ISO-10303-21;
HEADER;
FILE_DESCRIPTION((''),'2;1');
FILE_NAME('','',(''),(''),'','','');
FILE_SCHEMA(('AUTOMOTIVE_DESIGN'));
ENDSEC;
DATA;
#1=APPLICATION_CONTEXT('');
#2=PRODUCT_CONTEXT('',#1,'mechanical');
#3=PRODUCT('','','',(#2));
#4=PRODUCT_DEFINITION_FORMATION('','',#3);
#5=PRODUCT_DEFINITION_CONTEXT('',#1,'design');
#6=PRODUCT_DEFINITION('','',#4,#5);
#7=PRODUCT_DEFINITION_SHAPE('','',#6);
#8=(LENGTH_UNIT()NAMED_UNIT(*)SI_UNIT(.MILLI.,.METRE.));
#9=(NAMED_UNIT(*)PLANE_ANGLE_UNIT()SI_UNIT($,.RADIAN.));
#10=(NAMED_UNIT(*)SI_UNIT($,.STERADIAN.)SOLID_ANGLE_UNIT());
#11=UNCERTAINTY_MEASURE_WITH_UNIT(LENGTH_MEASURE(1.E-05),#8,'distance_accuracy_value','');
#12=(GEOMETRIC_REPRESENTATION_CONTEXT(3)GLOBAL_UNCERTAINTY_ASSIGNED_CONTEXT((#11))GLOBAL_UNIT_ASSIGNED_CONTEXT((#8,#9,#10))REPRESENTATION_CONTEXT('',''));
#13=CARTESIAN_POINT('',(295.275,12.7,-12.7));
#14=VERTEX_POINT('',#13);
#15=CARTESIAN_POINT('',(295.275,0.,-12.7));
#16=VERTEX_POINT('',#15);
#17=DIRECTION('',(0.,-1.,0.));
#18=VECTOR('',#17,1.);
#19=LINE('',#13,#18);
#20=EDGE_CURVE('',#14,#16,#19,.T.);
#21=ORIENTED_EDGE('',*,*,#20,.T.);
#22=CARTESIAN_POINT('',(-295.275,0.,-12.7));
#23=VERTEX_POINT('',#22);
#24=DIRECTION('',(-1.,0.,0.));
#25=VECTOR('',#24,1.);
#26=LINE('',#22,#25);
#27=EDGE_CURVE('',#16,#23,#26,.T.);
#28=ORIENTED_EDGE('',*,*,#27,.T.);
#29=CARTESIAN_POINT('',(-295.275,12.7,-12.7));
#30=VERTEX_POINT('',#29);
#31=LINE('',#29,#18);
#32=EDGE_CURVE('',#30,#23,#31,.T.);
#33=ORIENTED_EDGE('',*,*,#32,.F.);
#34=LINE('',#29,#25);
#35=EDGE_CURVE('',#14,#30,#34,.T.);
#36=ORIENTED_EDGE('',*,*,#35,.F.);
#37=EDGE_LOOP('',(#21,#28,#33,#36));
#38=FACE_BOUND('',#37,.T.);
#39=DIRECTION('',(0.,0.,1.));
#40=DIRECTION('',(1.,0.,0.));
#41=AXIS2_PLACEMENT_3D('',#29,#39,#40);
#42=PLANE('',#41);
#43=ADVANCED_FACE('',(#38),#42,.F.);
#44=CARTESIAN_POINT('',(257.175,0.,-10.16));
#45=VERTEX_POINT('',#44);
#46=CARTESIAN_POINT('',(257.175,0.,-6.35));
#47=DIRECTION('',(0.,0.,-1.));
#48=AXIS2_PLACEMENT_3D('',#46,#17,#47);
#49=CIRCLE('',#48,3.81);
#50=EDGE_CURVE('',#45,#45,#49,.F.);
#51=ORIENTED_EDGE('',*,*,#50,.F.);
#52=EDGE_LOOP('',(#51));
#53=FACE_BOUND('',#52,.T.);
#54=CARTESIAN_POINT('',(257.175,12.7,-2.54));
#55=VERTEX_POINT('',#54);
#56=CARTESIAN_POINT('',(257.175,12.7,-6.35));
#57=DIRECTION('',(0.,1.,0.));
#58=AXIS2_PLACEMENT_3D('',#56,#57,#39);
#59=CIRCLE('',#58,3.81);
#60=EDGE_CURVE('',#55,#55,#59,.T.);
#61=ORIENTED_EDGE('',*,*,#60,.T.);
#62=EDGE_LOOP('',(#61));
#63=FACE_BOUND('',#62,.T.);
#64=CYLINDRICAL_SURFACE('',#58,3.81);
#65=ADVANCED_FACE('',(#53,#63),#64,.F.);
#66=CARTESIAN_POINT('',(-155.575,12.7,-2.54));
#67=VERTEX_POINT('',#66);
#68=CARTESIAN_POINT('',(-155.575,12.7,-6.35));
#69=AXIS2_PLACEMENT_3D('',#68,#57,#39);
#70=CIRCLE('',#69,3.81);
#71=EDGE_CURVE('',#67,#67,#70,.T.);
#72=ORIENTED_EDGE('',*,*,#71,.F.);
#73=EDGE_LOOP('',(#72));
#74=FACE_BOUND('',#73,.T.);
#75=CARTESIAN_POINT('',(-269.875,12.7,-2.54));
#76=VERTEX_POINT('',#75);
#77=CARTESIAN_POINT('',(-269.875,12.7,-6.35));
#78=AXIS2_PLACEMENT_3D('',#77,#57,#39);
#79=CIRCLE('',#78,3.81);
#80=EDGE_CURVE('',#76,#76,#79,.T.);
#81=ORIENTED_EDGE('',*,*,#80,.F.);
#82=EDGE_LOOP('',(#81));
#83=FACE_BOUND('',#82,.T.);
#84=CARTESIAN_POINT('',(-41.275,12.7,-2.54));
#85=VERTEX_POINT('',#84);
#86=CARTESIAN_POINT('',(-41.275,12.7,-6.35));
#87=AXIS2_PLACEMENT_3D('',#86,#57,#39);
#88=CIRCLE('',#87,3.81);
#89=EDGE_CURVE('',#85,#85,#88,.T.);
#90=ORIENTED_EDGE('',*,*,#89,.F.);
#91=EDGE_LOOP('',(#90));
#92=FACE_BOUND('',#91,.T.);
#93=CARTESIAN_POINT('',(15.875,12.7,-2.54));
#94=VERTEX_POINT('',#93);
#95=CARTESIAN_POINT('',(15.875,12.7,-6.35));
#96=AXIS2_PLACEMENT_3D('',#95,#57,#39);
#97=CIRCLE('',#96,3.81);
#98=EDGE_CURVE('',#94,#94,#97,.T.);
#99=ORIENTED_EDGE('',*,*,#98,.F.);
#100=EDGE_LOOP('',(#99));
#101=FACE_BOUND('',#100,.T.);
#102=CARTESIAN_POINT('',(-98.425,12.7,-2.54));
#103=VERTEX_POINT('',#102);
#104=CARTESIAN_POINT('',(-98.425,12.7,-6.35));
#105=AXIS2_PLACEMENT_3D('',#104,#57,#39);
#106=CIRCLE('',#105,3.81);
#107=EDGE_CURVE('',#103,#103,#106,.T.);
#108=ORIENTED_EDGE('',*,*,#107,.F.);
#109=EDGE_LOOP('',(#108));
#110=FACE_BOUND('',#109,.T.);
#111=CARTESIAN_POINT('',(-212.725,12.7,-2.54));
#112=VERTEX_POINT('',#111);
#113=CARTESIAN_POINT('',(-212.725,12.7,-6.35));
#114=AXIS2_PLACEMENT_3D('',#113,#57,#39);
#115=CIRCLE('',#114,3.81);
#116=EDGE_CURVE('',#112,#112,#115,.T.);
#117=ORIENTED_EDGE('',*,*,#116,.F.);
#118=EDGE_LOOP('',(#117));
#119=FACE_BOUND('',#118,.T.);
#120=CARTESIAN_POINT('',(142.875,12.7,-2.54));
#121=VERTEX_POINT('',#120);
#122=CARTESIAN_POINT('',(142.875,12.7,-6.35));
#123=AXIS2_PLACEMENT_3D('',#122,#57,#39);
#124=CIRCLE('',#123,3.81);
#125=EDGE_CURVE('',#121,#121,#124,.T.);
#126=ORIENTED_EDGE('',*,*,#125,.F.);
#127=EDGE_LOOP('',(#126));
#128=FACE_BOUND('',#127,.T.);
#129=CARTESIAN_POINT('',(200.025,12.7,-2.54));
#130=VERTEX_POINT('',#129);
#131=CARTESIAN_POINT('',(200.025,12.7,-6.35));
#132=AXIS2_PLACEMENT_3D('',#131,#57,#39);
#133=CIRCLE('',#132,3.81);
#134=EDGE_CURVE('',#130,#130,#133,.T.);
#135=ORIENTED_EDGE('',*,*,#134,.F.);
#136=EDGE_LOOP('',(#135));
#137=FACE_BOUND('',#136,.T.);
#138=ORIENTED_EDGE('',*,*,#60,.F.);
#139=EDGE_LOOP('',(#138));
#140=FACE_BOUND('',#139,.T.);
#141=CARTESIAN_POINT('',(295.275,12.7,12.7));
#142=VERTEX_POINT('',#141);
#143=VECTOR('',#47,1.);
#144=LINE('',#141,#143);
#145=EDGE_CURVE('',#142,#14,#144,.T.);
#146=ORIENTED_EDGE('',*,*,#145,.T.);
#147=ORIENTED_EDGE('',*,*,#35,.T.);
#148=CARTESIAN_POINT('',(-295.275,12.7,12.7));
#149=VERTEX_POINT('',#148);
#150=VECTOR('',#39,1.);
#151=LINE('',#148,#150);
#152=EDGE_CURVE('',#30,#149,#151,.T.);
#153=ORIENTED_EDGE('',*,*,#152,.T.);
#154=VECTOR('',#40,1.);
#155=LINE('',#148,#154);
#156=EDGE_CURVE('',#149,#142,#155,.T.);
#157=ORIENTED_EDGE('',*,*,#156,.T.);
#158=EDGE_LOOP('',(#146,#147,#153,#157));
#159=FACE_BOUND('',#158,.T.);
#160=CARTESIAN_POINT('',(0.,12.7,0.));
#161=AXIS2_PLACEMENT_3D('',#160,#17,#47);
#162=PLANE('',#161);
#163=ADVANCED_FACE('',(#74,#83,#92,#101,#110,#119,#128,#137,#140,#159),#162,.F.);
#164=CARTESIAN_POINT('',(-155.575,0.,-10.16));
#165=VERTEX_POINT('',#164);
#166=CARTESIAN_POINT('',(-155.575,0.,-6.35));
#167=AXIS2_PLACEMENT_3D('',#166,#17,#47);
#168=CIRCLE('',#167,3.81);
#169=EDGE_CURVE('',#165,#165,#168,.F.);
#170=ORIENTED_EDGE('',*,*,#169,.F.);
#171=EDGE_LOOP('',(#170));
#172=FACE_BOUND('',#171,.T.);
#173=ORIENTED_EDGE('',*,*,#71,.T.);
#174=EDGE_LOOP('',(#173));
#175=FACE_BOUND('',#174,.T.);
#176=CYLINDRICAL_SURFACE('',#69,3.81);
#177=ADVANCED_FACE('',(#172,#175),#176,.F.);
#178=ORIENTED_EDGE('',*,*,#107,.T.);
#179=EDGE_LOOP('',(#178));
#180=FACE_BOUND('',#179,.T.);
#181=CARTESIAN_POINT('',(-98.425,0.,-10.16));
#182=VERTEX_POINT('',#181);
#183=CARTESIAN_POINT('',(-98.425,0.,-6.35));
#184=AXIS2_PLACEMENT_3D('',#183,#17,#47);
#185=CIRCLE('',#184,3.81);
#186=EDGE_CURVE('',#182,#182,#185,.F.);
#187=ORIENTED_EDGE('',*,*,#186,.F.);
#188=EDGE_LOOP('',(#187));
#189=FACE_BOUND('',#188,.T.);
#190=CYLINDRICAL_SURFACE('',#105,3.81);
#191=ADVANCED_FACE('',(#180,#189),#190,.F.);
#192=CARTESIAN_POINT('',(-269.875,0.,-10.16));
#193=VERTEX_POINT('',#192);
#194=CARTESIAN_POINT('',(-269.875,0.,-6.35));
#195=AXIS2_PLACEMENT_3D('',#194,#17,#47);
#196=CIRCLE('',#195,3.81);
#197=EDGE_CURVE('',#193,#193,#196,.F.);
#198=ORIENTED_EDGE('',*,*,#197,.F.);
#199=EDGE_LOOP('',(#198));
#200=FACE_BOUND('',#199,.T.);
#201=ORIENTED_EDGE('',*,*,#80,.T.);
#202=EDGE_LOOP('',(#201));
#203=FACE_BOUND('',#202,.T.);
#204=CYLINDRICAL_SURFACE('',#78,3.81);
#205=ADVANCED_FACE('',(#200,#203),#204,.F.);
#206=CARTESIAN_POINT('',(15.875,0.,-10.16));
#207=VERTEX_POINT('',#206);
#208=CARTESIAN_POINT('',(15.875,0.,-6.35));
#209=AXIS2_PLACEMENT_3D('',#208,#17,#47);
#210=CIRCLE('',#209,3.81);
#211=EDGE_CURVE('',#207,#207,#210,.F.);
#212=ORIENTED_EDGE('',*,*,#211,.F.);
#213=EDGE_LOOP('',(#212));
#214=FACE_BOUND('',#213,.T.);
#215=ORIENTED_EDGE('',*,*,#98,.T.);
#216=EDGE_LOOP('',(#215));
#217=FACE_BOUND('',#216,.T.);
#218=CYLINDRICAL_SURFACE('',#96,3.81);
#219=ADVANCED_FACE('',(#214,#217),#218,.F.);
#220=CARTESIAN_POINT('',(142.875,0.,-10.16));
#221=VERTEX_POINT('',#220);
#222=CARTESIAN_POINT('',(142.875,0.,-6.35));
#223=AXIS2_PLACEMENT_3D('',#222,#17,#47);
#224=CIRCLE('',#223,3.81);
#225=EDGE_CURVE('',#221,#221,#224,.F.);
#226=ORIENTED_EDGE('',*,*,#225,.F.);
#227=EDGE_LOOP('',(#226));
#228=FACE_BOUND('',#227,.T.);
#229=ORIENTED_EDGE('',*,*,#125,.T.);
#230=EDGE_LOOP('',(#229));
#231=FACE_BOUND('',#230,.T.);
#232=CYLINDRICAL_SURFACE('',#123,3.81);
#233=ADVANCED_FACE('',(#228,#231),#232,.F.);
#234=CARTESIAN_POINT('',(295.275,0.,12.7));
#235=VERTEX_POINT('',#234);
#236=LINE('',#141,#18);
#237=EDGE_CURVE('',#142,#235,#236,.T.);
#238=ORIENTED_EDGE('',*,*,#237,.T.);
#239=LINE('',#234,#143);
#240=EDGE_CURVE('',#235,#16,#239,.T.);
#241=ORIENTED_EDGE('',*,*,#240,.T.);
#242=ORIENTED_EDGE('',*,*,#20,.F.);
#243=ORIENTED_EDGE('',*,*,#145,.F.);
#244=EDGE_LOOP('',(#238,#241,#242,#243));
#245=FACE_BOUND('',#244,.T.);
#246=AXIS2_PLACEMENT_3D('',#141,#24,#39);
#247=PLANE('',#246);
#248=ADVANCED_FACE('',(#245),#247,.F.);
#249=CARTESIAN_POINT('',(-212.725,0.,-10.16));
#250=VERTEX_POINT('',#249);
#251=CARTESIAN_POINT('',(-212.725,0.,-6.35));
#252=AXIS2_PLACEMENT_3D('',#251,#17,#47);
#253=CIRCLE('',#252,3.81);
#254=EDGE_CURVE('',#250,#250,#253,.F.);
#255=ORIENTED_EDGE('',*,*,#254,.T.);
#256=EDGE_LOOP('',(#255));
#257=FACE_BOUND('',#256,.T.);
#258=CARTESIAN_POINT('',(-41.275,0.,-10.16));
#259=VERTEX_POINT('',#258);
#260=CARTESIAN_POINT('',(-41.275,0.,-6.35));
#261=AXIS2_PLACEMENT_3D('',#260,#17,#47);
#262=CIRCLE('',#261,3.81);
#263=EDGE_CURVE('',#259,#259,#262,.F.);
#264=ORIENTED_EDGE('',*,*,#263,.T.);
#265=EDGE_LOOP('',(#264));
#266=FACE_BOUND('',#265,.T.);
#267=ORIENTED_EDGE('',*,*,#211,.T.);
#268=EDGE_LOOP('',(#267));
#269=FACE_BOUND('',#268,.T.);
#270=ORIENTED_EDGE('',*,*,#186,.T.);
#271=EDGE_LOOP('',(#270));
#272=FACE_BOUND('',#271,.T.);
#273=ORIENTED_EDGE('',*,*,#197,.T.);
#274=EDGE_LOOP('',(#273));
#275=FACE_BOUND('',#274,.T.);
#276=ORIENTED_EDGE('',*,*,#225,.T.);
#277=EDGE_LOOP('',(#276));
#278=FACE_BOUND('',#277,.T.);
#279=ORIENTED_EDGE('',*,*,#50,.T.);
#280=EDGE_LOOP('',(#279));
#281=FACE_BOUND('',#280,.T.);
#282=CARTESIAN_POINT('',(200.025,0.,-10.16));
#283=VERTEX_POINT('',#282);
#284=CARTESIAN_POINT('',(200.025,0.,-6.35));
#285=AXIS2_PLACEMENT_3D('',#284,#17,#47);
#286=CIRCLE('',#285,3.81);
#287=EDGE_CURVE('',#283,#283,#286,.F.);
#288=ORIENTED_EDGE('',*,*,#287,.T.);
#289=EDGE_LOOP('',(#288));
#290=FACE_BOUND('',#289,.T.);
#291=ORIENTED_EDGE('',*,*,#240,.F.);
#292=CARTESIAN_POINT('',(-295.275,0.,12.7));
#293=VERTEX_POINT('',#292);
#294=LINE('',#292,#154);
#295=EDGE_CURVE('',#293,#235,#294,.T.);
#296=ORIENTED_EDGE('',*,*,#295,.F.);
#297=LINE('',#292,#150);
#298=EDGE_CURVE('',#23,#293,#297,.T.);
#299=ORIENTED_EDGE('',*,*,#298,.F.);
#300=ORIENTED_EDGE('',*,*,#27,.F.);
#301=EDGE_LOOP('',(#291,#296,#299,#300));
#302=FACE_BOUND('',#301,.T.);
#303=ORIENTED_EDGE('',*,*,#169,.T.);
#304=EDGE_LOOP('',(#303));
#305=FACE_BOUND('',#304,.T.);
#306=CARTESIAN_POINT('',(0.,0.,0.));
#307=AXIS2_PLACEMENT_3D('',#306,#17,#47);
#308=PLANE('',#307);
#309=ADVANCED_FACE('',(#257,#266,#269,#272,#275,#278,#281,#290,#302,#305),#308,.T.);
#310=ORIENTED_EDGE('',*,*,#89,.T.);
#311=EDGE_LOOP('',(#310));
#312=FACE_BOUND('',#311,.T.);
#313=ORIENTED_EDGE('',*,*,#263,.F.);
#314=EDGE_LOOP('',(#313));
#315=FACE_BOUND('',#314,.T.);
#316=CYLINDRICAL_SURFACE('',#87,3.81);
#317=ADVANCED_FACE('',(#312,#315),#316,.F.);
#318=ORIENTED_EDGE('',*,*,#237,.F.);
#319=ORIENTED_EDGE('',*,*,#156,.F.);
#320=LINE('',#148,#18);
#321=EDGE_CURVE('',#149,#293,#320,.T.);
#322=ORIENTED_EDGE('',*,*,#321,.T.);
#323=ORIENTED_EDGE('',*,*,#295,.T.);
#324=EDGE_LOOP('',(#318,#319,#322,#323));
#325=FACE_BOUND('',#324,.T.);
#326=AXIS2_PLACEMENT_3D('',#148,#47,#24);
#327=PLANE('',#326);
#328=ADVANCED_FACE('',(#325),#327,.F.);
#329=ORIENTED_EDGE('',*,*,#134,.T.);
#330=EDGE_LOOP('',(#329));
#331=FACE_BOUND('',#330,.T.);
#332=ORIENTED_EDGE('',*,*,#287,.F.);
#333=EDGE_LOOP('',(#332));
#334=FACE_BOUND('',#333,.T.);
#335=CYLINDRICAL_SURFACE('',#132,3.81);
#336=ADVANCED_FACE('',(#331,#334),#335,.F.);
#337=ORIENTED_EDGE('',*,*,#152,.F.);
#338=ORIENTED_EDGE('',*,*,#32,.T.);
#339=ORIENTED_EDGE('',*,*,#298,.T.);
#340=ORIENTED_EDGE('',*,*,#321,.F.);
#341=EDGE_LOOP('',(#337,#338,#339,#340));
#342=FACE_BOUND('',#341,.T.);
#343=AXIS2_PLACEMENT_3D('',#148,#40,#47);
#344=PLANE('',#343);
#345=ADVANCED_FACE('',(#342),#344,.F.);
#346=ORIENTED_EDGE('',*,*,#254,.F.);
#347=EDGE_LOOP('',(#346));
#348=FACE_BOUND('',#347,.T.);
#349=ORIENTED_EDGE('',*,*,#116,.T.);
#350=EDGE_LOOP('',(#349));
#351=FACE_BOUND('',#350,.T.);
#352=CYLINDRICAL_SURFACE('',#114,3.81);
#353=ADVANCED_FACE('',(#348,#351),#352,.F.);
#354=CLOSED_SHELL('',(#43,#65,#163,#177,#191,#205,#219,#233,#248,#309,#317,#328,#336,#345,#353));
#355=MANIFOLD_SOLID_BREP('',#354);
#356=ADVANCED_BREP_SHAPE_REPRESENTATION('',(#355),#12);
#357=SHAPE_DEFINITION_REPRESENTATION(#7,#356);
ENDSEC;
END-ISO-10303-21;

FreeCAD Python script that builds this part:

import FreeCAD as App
import Part
import Sketcher
from FreeCAD import Vector
Q = App.Units.Quantity

doc = App.newDocument("Part")
body = doc.addObject("PartDesign::Body", "Body")

# Sketch on XZ plane
sketch1 = doc.addObject("Sketcher::SketchObject", "Sketch")
body.addObject(sketch1)
sketch1.AttachmentSupport = (doc.XZ_Plane, [""])
sketch1.MapMode = "FlatFace"
sketch1.addGeometry([
    Part.LineSegment(Vector(-295, -13, 0), Vector(-295, 13, 0)),
    Part.LineSegment(Vector(-295, 13, 0), Vector(295, 13, 0)),
    Part.LineSegment(Vector(295, 13, 0), Vector(295, -13, 0)),
    Part.LineSegment(Vector(295, -13, 0), Vector(-295, -13, 0)),
], False)
sketch1.addConstraint([
    Sketcher.Constraint("Coincident", 0, 2, 1, 1),
    Sketcher.Constraint("Coincident", 1, 2, 2, 1),
    Sketcher.Constraint("Coincident", 2, 2, 3, 1),
    Sketcher.Constraint("Coincident", 3, 2, 0, 1),
    Sketcher.Constraint("Vertical", 0),
    Sketcher.Constraint("Horizontal", 1),
    Sketcher.Constraint("Vertical", 2),
    Sketcher.Constraint("Horizontal", 3),
    Sketcher.Constraint("Symmetric", 0, 2, 2, 2, -1, 1),
    Sketcher.Constraint("DistanceY", 0, 1, 0, 2, Q("1 in")),
    Sketcher.Constraint("DistanceX", 1, 1, 1, 2, Q("23.25 in")),
])
pad1 = doc.addObject("PartDesign::Pad", "Pad")
body.addObject(pad1)
pad1.Profile = sketch1
pad1.Length = Q("0.5 in")
pad1.Reversed = True

# Sketch on XZ plane
sketch2 = doc.addObject("Sketcher::SketchObject", "Sketch001")
body.addObject(sketch2)
sketch2.AttachmentSupport = (doc.XZ_Plane, [""])
sketch2.MapMode = "FlatFace"
sketch2.AttachmentOffset = App.Placement(Vector(0, 0, -0.5 * 25.4), App.Rotation())
sketch2.addGeometry([
    Part.Circle(Vector(-269.9, -6.3, 0), Vector(0, 0, 1), 3.8),  # 0
    Part.Circle(Vector(-212.7, -6.3, 0), Vector(0, 0, 1), 3.8),  # 1
    Part.Circle(Vector(142.9, -6.3, 0), Vector(0, 0, 1), 3.8),  # 2
    Part.Circle(Vector(-155.6, -6.3, 0), Vector(0, 0, 1), 3.8),  # 3
    Part.Circle(Vector(-98.4, -6.3, 0), Vector(0, 0, 1), 3.8),  # 4
    Part.Circle(Vector(-41.3, -6.3, 0), Vector(0, 0, 1), 3.8),  # 5
    Part.Circle(Vector(15.9, -6.3, 0), Vector(0, 0, 1), 3.8),  # 6
    Part.Circle(Vector(200, -6.3, 0), Vector(0, 0, 1), 3.8),  # 7
    Part.Circle(Vector(257.2, -6.3, 0), Vector(0, 0, 1), 3.8),  # 8
], False)
sketch2.addConstraint([
    Sketcher.Constraint("Equal", 0, 1),
    Sketcher.Constraint("Equal", 1, 2),
    Sketcher.Constraint("Equal", 2, 3),
    Sketcher.Constraint("Equal", 3, 4),
    Sketcher.Constraint("Equal", 4, 5),
    Sketcher.Constraint("Equal", 5, 6),
    Sketcher.Constraint("Equal", 6, 7),
    Sketcher.Constraint("Equal", 7, 8),
    Sketcher.Constraint("Horizontal", 0, 3, 1, 3),
    Sketcher.Constraint("Horizontal", 1, 3, 2, 3),
    Sketcher.Constraint("Horizontal", 2, 3, 3, 3),
    Sketcher.Constraint("Horizontal", 3, 3, 4, 3),
    Sketcher.Constraint("Horizontal", 4, 3, 5, 3),
    Sketcher.Constraint("Horizontal", 5, 3, 6, 3),
    Sketcher.Constraint("Horizontal", 6, 3, 7, 3),
    Sketcher.Constraint("Horizontal", 7, 3, 8, 3),
    Sketcher.Constraint("Diameter", 0, Q("0.3 in")),
    Sketcher.Constraint("DistanceX", 1, 3, 2, 3, Q("14 in")),
    Sketcher.Constraint("DistanceX", 0, 3, 5, 3, Q("9 in")),
    Sketcher.Constraint("DistanceX", 6, 3, 2, 3, Q("5 in")),
    Sketcher.Constraint("DistanceX", 3, 3, 7, 3, Q("14 in")),
    Sketcher.Constraint("DistanceX", 4, 3, 8, 3, Q("14 in")),
    Sketcher.Constraint("DistanceX", 0, 3, 3, 3, Q("4.5 in")),
    Sketcher.Constraint("DistanceX", 1, 3, 4, 3, Q("4.5 in")),
    Sketcher.Constraint("DistanceY", 0, 3, -1, 1, Q("0.25 in")),
    Sketcher.Constraint("DistanceX", 0, 3, 1, 3, Q("2.25 in")),
    Sketcher.Constraint("DistanceX", 0, 3, -1, 1, Q("10.625 in")),
])
doc.recompute()
hole = doc.addObject("PartDesign::Hole", "Hole")
body.addObject(hole)
hole.Profile = sketch2
hole.ThreadType = "None"
hole.Diameter = Q("0.3 in")
hole.DepthType = "Dimension"
hole.Depth = Q("0.5 in")
hole.DrillPoint = "Angled"
hole.DrillPointAngle = 118
hole.Reversed = True

doc.recompute()
